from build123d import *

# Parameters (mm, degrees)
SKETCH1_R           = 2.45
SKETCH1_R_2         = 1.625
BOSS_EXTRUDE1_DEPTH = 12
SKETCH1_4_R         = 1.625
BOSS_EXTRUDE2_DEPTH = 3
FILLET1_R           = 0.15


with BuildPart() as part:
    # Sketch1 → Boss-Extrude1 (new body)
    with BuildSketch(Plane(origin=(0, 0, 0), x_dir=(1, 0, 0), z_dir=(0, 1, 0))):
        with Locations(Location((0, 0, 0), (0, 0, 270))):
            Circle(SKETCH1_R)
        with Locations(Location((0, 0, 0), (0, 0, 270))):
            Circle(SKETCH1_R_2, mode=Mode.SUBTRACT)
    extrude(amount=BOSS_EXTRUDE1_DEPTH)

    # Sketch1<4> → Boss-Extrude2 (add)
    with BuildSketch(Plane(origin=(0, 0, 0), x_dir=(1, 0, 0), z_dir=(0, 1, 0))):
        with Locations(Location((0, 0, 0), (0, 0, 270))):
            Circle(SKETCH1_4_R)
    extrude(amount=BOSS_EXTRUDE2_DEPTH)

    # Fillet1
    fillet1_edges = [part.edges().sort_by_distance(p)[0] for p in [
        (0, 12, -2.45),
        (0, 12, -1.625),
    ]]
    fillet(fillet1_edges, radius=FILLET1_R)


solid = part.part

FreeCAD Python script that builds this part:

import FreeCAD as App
import Part
import Sketcher

V = App.Vector
Q = App.Units.Quantity


def edges_at(feature, points):
    """Names of the edges that pass closest to the given points."""
    edges = feature.Shape.Edges
    near = lambda p: min(range(len(edges)), key=lambda i: edges[i].distToShape(Part.Vertex(*p))[0])
    return sorted({f"Edge{near(p) + 1}" for p in points})

doc = App.newDocument("Part")
body = doc.addObject("PartDesign::Body", "Body")

sketch1 = doc.addObject("Sketcher::SketchObject", "Sketch")
body.addObject(sketch1)
sketch1.AttachmentSupport = (doc.XZ_Plane, [""])
sketch1.MapMode = "FlatFace"
sketch1.addGeometry(Part.Circle(V(0, 0, 0), V(0, 0, 1), 2.45), False)
sketch1.addGeometry(Part.Circle(V(0, 0, 0), V(0, 0, 1), 1.625), False)
sketch1.addConstraint(Sketcher.Constraint("Coincident", 0, 3, -1, 1))
sketch1.addConstraint(Sketcher.Constraint("Coincident", 1, 3, -1, 1))
sketch1.addConstraint(Sketcher.Constraint("Diameter", 0, Q("4.9 mm")))
sketch1.addConstraint(Sketcher.Constraint("Diameter", 1, Q("3.25 mm")))
pad1 = doc.addObject("PartDesign::Pad", "Pad")
body.addObject(pad1)
pad1.Profile = sketch1
pad1.Length = 12
pad1.Reversed = True

sketch2 = doc.addObject("Sketcher::SketchObject", "Sketch001")
body.addObject(sketch2)
sketch2.AttachmentSupport = (doc.XZ_Plane, [""])
sketch2.MapMode = "FlatFace"
sketch2.addGeometry(Part.Circle(V(0, 0, 0), V(0, 0, 1), 1.625), False)
sketch2.addConstraint(Sketcher.Constraint("Coincident", 0, 3, -1, 1))
sketch2.addConstraint(Sketcher.Constraint("Diameter", 0, Q("3.25 mm")))
pad2 = doc.addObject("PartDesign::Pad", "Pad001")
body.addObject(pad2)
pad2.Profile = sketch2
pad2.Length = 3
pad2.Reversed = True
doc.recompute()

fillet = doc.addObject("PartDesign::Fillet", "Fillet")
body.addObject(fillet)
fillet.Base = (pad2, edges_at(pad2, [(0, 12, -2.45), (0, 12, -1.625)]))
fillet.Radius = 0.15

doc.recompute()
